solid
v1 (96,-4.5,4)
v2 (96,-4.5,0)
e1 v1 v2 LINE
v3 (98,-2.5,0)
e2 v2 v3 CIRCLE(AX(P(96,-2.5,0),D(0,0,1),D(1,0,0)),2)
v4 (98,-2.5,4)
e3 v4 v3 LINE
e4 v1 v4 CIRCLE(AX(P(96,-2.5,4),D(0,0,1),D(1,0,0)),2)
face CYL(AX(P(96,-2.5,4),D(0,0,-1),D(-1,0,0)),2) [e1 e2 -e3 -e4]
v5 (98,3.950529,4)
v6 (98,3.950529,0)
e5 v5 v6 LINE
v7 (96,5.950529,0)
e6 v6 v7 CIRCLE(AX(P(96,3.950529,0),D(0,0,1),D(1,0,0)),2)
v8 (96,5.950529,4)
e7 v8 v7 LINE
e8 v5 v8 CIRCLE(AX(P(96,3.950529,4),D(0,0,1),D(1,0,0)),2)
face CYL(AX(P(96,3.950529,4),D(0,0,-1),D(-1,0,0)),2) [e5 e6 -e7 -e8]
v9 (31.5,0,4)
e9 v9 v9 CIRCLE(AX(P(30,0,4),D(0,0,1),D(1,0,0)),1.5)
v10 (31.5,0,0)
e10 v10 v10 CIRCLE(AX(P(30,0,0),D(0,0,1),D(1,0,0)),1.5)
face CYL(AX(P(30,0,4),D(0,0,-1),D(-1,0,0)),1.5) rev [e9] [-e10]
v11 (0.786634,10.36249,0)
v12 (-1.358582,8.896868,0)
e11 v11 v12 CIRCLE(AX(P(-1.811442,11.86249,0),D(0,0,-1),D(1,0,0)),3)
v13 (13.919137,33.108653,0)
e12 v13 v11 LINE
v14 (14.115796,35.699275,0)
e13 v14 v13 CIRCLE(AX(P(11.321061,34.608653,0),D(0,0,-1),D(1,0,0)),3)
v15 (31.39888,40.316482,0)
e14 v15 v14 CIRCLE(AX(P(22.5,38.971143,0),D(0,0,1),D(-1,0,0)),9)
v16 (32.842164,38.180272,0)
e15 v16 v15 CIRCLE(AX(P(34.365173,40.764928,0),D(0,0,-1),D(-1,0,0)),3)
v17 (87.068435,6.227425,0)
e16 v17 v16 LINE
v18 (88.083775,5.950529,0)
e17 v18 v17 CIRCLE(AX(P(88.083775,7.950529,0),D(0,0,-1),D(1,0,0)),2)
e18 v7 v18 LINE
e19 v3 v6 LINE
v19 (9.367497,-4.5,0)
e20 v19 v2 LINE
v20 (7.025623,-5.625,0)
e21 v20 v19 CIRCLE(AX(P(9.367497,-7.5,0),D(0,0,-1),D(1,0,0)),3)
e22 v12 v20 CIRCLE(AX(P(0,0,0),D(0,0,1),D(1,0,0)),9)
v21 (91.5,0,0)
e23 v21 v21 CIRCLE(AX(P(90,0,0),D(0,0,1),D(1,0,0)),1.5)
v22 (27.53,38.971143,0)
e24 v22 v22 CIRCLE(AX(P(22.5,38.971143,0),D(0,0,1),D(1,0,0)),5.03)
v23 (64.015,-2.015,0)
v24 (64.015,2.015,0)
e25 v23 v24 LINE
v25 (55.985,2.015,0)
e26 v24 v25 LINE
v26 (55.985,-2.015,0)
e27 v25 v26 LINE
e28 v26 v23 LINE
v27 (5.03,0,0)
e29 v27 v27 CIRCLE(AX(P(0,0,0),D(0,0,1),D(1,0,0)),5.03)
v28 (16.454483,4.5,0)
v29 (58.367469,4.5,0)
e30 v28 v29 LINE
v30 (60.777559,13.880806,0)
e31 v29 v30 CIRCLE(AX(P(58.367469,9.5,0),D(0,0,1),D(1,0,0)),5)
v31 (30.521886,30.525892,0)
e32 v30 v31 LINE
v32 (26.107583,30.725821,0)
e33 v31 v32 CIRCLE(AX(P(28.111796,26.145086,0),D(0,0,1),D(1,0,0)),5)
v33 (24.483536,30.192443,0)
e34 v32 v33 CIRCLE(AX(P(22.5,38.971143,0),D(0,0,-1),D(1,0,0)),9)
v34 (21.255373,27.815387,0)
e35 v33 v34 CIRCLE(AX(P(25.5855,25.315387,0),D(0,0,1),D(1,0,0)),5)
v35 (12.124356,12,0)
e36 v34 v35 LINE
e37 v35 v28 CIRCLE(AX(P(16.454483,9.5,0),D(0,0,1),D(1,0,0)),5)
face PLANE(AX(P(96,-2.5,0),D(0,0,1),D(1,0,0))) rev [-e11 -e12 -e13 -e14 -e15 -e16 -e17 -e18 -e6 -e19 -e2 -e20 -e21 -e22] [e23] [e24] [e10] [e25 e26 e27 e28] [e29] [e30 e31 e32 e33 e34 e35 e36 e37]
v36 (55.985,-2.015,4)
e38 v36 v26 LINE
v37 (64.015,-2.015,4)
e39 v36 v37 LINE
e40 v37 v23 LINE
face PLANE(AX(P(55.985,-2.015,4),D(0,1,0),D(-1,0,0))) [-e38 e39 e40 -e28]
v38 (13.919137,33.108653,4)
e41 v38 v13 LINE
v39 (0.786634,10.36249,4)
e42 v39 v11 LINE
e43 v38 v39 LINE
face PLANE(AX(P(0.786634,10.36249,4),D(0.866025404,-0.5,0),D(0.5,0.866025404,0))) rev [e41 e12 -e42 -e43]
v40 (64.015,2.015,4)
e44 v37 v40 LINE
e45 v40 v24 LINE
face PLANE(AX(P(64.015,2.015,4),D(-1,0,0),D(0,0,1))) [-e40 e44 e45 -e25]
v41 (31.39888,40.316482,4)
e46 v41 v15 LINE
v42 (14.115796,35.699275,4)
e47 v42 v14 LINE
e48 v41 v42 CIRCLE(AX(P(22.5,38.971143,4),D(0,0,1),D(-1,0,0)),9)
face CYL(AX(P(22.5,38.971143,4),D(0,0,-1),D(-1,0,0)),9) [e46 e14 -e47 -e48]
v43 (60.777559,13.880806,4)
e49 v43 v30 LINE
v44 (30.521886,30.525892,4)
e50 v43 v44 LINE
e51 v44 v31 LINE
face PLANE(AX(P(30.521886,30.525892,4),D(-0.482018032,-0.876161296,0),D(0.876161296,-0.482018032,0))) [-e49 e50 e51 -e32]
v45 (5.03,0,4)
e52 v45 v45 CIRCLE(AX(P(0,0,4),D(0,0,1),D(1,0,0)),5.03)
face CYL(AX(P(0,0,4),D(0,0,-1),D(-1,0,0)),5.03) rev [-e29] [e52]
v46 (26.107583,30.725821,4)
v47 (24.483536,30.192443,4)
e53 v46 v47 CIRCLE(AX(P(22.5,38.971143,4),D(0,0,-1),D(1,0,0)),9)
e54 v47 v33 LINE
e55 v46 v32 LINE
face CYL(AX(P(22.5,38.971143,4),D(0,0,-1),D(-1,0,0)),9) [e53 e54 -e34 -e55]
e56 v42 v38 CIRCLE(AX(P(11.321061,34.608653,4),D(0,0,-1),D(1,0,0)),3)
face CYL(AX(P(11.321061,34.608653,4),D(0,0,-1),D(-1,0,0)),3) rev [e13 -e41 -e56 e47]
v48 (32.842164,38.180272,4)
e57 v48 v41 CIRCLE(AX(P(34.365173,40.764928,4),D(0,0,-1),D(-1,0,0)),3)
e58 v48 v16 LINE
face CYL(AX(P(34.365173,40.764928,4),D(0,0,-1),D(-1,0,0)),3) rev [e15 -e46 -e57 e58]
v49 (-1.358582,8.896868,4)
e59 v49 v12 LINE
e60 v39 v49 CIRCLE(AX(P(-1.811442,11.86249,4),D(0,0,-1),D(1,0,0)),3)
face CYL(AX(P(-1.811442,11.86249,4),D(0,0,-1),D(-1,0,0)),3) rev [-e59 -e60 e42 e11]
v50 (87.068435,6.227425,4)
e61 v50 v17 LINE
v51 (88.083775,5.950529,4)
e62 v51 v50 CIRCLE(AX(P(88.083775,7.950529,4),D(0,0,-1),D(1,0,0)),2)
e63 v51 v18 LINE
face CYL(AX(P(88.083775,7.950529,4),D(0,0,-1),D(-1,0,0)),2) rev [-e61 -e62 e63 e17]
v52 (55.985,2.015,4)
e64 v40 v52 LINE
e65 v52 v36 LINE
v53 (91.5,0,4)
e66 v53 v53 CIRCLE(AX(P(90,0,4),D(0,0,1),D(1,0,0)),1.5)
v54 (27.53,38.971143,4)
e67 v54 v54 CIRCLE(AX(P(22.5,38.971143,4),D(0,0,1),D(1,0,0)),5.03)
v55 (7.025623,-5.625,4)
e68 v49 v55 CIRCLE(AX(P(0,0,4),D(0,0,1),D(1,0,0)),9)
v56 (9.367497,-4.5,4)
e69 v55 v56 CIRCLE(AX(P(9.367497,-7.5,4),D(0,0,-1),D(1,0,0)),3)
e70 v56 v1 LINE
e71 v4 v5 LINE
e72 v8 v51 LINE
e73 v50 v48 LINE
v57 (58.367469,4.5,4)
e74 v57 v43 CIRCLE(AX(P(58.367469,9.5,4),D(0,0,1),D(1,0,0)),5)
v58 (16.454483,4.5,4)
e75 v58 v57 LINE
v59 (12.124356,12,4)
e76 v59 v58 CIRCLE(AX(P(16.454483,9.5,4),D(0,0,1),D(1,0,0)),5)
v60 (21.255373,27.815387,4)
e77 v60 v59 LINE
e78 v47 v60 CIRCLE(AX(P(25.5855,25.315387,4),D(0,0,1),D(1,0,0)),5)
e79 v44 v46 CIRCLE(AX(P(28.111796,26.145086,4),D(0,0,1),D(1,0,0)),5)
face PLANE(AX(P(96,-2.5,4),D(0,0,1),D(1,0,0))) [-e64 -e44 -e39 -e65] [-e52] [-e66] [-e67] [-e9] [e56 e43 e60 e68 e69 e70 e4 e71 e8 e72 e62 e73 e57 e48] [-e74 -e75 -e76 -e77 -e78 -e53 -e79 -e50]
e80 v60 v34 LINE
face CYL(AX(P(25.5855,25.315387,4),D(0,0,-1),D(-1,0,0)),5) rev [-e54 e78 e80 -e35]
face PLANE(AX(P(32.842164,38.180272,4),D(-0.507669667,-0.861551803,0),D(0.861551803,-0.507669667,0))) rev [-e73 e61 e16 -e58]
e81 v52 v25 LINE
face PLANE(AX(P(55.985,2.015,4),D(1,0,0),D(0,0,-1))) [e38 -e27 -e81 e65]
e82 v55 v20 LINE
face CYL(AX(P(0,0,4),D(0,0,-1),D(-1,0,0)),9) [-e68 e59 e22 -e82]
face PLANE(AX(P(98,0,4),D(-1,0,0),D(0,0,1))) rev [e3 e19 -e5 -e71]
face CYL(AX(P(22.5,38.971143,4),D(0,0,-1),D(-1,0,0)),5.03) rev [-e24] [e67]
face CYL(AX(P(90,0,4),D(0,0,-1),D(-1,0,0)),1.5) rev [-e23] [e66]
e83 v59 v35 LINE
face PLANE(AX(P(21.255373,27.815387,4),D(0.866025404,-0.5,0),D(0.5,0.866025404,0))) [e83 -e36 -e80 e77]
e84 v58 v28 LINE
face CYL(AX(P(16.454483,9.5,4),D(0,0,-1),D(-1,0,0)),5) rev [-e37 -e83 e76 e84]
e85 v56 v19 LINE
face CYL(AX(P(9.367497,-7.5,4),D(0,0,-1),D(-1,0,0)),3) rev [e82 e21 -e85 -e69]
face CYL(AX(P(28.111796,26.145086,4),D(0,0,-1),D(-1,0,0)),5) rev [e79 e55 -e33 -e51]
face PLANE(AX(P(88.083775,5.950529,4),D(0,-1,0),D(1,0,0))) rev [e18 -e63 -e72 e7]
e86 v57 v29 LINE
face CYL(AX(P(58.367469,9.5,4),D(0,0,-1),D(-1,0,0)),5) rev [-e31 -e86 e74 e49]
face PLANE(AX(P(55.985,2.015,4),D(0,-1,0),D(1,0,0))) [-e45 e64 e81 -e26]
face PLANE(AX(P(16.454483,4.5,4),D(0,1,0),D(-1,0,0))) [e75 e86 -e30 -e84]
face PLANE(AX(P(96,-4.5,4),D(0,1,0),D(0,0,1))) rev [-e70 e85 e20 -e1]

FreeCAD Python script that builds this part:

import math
import FreeCAD as App
import Part
import Sketcher
Q = App.Units.Quantity

doc = App.newDocument("Part")
body = doc.addObject("PartDesign::Body", "Body")

sketch1 = doc.addObject("Sketcher::SketchObject", "Sketch")
body.addObject(sketch1)
sketch1.AttachmentSupport = (doc.XY_Plane, [""])
sketch1.MapMode = "FlatFace"
sketch1.addGeometry(Part.ArcOfCircle(Part.Circle(App.Vector(9.367497, -7.5, 0), App.Vector(0, 0, 1), 3), math.radians(90), math.radians(141.317813)), False)
sketch1.addGeometry(Part.LineSegment(App.Vector(9.367497, -4.5, 0), App.Vector(96, -4.5, 0)), False)
sketch1.addGeometry(Part.ArcOfCircle(Part.Circle(App.Vector(96, -2.5, 0), App.Vector(0, 0, 1), 2), math.radians(-90), math.radians(0)), False)
sketch1.addGeometry(Part.LineSegment(App.Vector(98, -2.5, 0), App.Vector(98, 3.950529, 0)), False)
sketch1.addGeometry(Part.ArcOfCircle(Part.Circle(App.Vector(96, 3.950529, 0), App.Vector(0, 0, 1), 2), math.radians(0), math.radians(90)), False)
sketch1.addGeometry(Part.LineSegment(App.Vector(96, 5.950529, 0), App.Vector(88.083775, 5.950529, 0)), False)
sketch1.addGeometry(Part.ArcOfCircle(Part.Circle(App.Vector(88.083775, 7.950529, 0), App.Vector(0, 0, 1), 2), math.radians(-120.508732), math.radians(-90)), False)
sketch1.addGeometry(Part.LineSegment(App.Vector(87.068435, 6.227425, 0), App.Vector(32.842164, 38.180272, 0)), False)
sketch1.addGeometry(Part.ArcOfCircle(Part.Circle(App.Vector(34.365173, 40.764928, 0), App.Vector(0, 0, 1), 3), math.radians(-171.403088), math.radians(-120.508732)), False)
sketch1.addGeometry(Part.ArcOfCircle(Part.Circle(App.Vector(22.5, 38.971143, 0), App.Vector(0, 0, 1), 9), math.radians(8.596912), math.radians(201.317813)), False)
sketch1.addGeometry(Part.ArcOfCircle(Part.Circle(App.Vector(11.321061, 34.608653, 0), App.Vector(0, 0, 1), 3), math.radians(-30), math.radians(21.317813)), False)
sketch1.addGeometry(Part.LineSegment(App.Vector(13.919137, 33.108653, 0), App.Vector(0.786634, 10.36249, 0)), False)
sketch1.addGeometry(Part.ArcOfCircle(Part.Circle(App.Vector(-1.811442, 11.86249, 0), App.Vector(0, 0, 1), 3), math.radians(-81.317813), math.radians(-30)), False)
sketch1.addGeometry(Part.ArcOfCircle(Part.Circle(App.Vector(0, 0, 0), App.Vector(0, 0, 1), 9), math.radians(98.682187), math.radians(321.317813)), False)
sketch1.addGeometry(Part.Circle(App.Vector(90, 0, 0), App.Vector(0, 0, 1), 1.5), False)
sketch1.addGeometry(Part.LineSegment(App.Vector(55.985, -2.015, 0), App.Vector(55.985, 2.015, 0)), False)
sketch1.addGeometry(Part.LineSegment(App.Vector(55.985, 2.015, 0), App.Vector(64.015, 2.015, 0)), False)
sketch1.addGeometry(Part.LineSegment(App.Vector(64.015, 2.015, 0), App.Vector(64.015, -2.015, 0)), False)
sketch1.addGeometry(Part.LineSegment(App.Vector(64.015, -2.015, 0), App.Vector(55.985, -2.015, 0)), False)
sketch1.addGeometry(Part.Circle(App.Vector(30, 0, 0), App.Vector(0, 0, 1), 1.5), False)
sketch1.addGeometry(Part.Circle(App.Vector(0, 0, 0), App.Vector(0, 0, 1), 5.03), False)
sketch1.addGeometry(Part.ArcOfCircle(Part.Circle(App.Vector(25.5855, 25.315387, 0), App.Vector(0, 0, 1), 5), math.radians(102.73211), math.radians(150)), False)
sketch1.addGeometry(Part.ArcOfCircle(Part.Circle(App.Vector(22.5, 38.971143, 0), App.Vector(0, 0, 1), 9), math.radians(-77.26789), math.radians(-66.369138)), False)
sketch1.addGeometry(Part.ArcOfCircle(Part.Circle(App.Vector(28.111796, 26.145086, 0), App.Vector(0, 0, 1), 5), math.radians(61.182714), math.radians(113.630862)), False)
sketch1.addGeometry(Part.LineSegment(App.Vector(30.521886, 30.525892, 0), App.Vector(60.777559, 13.880806, 0)), False)
sketch1.addGeometry(Part.ArcOfCircle(Part.Circle(App.Vector(58.367469, 9.5, 0), App.Vector(0, 0, 1), 5), math.radians(-90), math.radians(61.182714)), False)
sketch1.addGeometry(Part.LineSegment(App.Vector(58.367469, 4.5, 0), App.Vector(16.454483, 4.5, 0)), False)
sketch1.addGeometry(Part.ArcOfCircle(Part.Circle(App.Vector(16.454483, 9.5, 0), App.Vector(0, 0, 1), 5), math.radians(150), math.radians(270)), False)
sketch1.addGeometry(Part.LineSegment(App.Vector(12.124356, 12, 0), App.Vector(21.255373, 27.815387, 0)), False)
sketch1.addGeometry(Part.Circle(App.Vector(22.5, 38.971143, 0), App.Vector(0, 0, 1), 5.03), False)
sketch1.addConstraint(Sketcher.Constraint("Tangent", 0, 1, 1, 1))
sketch1.addConstraint(Sketcher.Constraint("Tangent", 1, 2, 2, 1))
sketch1.addConstraint(Sketcher.Constraint("Tangent", 2, 2, 3, 1))
sketch1.addConstraint(Sketcher.Constraint("Tangent", 3, 2, 4, 1))
sketch1.addConstraint(Sketcher.Constraint("Tangent", 4, 2, 5, 1))
sketch1.addConstraint(Sketcher.Constraint("Tangent", 5, 2, 6, 2))
sketch1.addConstraint(Sketcher.Constraint("Tangent", 6, 1, 7, 1))
sketch1.addConstraint(Sketcher.Constraint("Tangent", 7, 2, 8, 2))
sketch1.addConstraint(Sketcher.Constraint("Tangent", 8, 1, 9, 1))
sketch1.addConstraint(Sketcher.Constraint("Tangent", 9, 2, 10, 2))
sketch1.addConstraint(Sketcher.Constraint("Tangent", 10, 1, 11, 1))
sketch1.addConstraint(Sketcher.Constraint("Tangent", 11, 2, 12, 2))
sketch1.addConstraint(Sketcher.Constraint("Tangent", 12, 1, 13, 1))
sketch1.addConstraint(Sketcher.Constraint("Tangent", 13, 2, 0, 2))
sketch1.addConstraint(Sketcher.Constraint("Coincident", 15, 2, 16, 1))
sketch1.addConstraint(Sketcher.Constraint("Coincident", 16, 2, 17, 1))
sketch1.addConstraint(Sketcher.Constraint("Coincident", 17, 2, 18, 1))
sketch1.addConstraint(Sketcher.Constraint("Coincident", 18, 2, 15, 1))
sketch1.addConstraint(Sketcher.Constraint("Tangent", 21, 1, 22, 1))
sketch1.addConstraint(Sketcher.Constraint("Tangent", 22, 2, 23, 2))
sketch1.addConstraint(Sketcher.Constraint("Tangent", 23, 1, 24, 1))
sketch1.addConstraint(Sketcher.Constraint("Tangent", 24, 2, 25, 2))
sketch1.addConstraint(Sketcher.Constraint("Tangent", 25, 1, 26, 1))
sketch1.addConstraint(Sketcher.Constraint("Tangent", 26, 2, 27, 2))
sketch1.addConstraint(Sketcher.Constraint("Tangent", 27, 1, 28, 1))
sketch1.addConstraint(Sketcher.Constraint("Tangent", 28, 2, 21, 2))
sketch1.addConstraint(Sketcher.Constraint("Horizontal", 1))
sketch1.addConstraint(Sketcher.Constraint("Vertical", 3))
sketch1.addConstraint(Sketcher.Constraint("Horizontal", 5))
sketch1.addConstraint(Sketcher.Constraint("Vertical", 15))
sketch1.addConstraint(Sketcher.Constraint("Horizontal", 16))
sketch1.addConstraint(Sketcher.Constraint("Vertical", 17))
sketch1.addConstraint(Sketcher.Constraint("Horizontal", 18))
sketch1.addConstraint(Sketcher.Constraint("Horizontal", 26))
sketch1.addConstraint(Sketcher.Constraint("Coincident", 13, 3, -1, 1))
sketch1.addConstraint(Sketcher.Constraint("Coincident", 20, 3, -1, 1))
sketch1.addConstraint(Sketcher.Constraint("Coincident", 22, 3, 9, 3))
sketch1.addConstraint(Sketcher.Constraint("Coincident", 29, 3, 9, 3))
sketch1.addConstraint(Sketcher.Constraint("Equal", 2, 4))
sketch1.addConstraint(Sketcher.Constraint("Equal", 4, 6))
sketch1.addConstraint(Sketcher.Constraint("Equal", 0, 8))
sketch1.addConstraint(Sketcher.Constraint("Equal", 8, 10))
sketch1.addConstraint(Sketcher.Constraint("Equal", 10, 12))
sketch1.addConstraint(Sketcher.Constraint("Equal", 9, 13))
sketch1.addConstraint(Sketcher.Constraint("Equal", 14, 19))
sketch1.addConstraint(Sketcher.Constraint("Equal", 13, 22))
sketch1.addConstraint(Sketcher.Constraint("Equal", 21, 23))
sketch1.addConstraint(Sketcher.Constraint("Equal", 23, 25))
sketch1.addConstraint(Sketcher.Constraint("Equal", 25, 27))
sketch1.addConstraint(Sketcher.Constraint("Equal", 20, 29))
sketch1.addConstraint(Sketcher.Constraint("PointOnObject", 14, 3, -1))
sketch1.addConstraint(Sketcher.Constraint("PointOnObject", 19, 3, -1))
sketch1.addConstraint(Sketcher.Constraint("Parallel", 11, 28))
sketch1.addConstraint(Sketcher.Constraint("Diameter", 14, Q("3 mm")))
sketch1.addConstraint(Sketcher.Constraint("Radius", 0, Q("3 mm")))
sketch1.addConstraint(Sketcher.Constraint("Radius", 2, Q("2 mm")))
sketch1.addConstraint(Sketcher.Constraint("Radius", 9, Q("9 mm")))
sketch1.addConstraint(Sketcher.Constraint("Radius", 21, Q("5 mm")))
sketch1.addConstraint(Sketcher.Constraint("Diameter", 20, Q("10.06 mm")))
sketch1.addConstraint(Sketcher.Constraint("Angle", 11, Q("-120 deg")))
sketch1.addConstraint(Sketcher.Constraint("DistanceX", -1, 1, 2, 3, Q("96 mm")))
sketch1.addConstraint(Sketcher.Constraint("DistanceX", -1, 1, 14, 3, Q("90 mm")))
sketch1.addConstraint(Sketcher.Constraint("DistanceX", -1, 1, 19, 3, Q("30 mm")))
sketch1.addConstraint(Sketcher.Constraint("DistanceY", -1, 1, 27, 1, Q("12 mm")))
sketch1.addConstraint(Sketcher.Constraint("DistanceY", 0, 3, 27, 3, Q("17 mm")))
sketch1.addConstraint(Sketcher.Constraint("DistanceX", 16, 1, 16, 2, Q("8.03 mm")))
sketch1.addConstraint(Sketcher.Constraint("DistanceY", 15, 1, 15, 2, Q("4.03 mm")))
sketch1.addConstraint(Sketcher.Constraint("DistanceX", -1, 1, 9, 3, Q("22.5 mm")))
sketch1.addConstraint(Sketcher.Constraint("DistanceX", -1, 1, 15, 2, Q("55.985 mm")))
sketch1.addConstraint(Sketcher.Constraint("DistanceY", -1, 1, 15, 2, Q("2.015 mm")))
sketch1.addConstraint(Sketcher.Constraint("DistanceY", 3, 1, 3, 2, Q("6.450529 mm")))
sketch1.addConstraint(Sketcher.Constraint("DistanceX", -1, 1, 21, 3, Q("25.5855 mm")))
sketch1.addConstraint(Sketcher.Constraint("DistanceX", 8, 3, 6, 3, Q("53.718601 mm")))
sketch1.addConstraint(Sketcher.Constraint("DistanceY", 6, 3, 8, 3, Q("32.814399 mm")))
sketch1.addConstraint(Sketcher.Constraint("DistanceY", 21, 3, 23, 3, Q("0.829699 mm")))
sketch1.addConstraint(Sketcher.Constraint("Distance", 24, Q("34.532081 mm")))
sketch1.addConstraint(Sketcher.Constraint("DistanceX", 5, 2, 5, 1, Q("7.916225 mm")))
sketch1.addConstraint(Sketcher.Constraint("DistanceX", -1, 1, 10, 3, Q("11.321061 mm")))
pad1 = doc.addObject("PartDesign::Pad", "Pad")
body.addObject(pad1)
pad1.Profile = sketch1
pad1.Length = 4

doc.recompute()
